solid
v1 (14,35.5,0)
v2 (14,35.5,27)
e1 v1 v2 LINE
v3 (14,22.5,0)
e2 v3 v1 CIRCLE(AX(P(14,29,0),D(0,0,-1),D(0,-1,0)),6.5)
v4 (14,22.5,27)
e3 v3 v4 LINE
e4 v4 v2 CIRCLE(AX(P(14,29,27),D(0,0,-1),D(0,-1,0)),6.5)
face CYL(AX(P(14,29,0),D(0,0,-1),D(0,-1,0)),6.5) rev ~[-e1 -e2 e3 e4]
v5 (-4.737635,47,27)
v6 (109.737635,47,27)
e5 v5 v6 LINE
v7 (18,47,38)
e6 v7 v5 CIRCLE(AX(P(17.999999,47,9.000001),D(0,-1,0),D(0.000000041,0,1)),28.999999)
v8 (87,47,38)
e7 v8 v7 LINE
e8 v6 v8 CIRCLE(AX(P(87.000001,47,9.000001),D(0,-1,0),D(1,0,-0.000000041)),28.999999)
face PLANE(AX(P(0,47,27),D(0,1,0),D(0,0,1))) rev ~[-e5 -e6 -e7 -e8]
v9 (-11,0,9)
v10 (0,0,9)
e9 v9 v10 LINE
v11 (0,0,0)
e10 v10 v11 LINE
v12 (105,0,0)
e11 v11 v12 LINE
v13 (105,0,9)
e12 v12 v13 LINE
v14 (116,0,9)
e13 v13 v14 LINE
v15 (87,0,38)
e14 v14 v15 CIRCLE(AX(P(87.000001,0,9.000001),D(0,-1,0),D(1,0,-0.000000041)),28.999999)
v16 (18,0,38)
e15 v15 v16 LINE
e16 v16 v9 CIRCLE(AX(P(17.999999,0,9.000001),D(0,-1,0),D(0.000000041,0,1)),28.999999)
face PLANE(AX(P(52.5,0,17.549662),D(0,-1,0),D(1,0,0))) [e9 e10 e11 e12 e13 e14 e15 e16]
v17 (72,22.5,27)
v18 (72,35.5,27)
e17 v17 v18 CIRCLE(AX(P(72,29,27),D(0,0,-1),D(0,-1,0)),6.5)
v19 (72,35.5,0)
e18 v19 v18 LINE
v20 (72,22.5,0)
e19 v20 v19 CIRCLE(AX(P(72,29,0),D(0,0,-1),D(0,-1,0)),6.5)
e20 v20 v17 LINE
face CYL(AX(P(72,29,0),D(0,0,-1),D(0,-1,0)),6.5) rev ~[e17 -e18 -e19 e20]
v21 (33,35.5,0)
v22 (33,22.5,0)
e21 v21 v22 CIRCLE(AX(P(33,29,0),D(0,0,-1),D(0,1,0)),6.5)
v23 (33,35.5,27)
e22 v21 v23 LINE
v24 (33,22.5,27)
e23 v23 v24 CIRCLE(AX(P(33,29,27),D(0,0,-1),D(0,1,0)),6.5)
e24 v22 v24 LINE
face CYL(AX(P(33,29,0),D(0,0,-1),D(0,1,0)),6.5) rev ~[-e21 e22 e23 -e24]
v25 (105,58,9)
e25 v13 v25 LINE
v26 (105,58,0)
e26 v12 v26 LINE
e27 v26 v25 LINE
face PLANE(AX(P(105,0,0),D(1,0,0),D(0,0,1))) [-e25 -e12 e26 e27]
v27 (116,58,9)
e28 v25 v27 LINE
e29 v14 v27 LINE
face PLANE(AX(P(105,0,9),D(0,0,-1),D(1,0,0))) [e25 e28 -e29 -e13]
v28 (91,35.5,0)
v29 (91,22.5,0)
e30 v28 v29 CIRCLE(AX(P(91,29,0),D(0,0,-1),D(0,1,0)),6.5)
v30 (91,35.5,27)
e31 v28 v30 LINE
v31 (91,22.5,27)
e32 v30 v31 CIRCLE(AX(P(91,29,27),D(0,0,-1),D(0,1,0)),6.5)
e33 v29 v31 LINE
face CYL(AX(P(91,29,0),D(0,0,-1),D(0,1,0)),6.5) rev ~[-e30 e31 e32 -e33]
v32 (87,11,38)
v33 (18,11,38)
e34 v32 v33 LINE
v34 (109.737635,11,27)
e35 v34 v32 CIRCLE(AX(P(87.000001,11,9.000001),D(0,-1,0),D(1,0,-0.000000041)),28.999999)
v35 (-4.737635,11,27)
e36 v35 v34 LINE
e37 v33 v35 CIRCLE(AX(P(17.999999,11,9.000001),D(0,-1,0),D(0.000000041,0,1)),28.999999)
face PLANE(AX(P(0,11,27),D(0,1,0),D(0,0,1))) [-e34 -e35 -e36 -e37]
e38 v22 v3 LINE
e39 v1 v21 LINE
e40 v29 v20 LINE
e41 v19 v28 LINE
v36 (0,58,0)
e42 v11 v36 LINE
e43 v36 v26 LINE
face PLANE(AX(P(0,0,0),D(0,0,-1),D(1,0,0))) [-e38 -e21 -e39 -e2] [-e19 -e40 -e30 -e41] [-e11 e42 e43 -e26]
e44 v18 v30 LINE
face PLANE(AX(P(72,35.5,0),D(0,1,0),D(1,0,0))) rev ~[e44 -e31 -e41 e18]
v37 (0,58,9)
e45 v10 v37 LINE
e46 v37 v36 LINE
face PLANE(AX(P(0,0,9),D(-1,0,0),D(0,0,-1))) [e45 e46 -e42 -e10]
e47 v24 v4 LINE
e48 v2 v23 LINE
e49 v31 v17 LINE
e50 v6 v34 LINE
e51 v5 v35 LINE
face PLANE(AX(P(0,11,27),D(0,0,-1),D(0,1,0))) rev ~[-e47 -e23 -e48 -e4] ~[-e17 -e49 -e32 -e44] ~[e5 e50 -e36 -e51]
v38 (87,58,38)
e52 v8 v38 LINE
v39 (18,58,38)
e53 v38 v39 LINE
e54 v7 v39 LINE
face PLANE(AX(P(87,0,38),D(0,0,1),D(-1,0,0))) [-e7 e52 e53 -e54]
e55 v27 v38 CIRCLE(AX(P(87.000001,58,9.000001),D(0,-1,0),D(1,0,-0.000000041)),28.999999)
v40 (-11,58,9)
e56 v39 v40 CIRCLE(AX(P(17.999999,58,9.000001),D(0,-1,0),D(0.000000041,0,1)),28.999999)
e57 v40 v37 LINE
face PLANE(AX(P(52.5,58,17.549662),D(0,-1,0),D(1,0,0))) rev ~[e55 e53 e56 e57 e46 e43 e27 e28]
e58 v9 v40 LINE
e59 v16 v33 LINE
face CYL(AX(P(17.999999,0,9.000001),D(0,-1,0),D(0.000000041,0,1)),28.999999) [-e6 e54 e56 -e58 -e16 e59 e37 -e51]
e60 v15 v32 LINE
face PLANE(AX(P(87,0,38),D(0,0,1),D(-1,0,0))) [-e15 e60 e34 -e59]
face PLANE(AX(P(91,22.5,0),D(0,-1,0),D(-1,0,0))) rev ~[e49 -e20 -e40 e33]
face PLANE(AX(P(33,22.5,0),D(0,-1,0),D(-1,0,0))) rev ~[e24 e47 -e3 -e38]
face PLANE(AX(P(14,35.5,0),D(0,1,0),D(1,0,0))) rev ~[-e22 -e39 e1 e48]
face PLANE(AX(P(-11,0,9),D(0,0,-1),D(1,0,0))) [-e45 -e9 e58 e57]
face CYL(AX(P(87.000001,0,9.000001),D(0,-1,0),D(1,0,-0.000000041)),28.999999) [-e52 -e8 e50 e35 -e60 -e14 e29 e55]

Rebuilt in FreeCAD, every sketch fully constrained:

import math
import FreeCAD as App
import Part
import Sketcher
from FreeCAD import Vector


def add_polygon(sketch, points):
    """Adds a closed chain of lines whose ends are joined by coincident constraints."""
    first, n = sketch.GeometryCount, len(points)
    for a, b in zip(points, points[1:] + points[:1]):
        sketch.addGeometry(Part.LineSegment(App.Vector(*a, 0), App.Vector(*b, 0)), False)
    for i in range(n):
        sketch.addConstraint(Sketcher.Constraint("Coincident", first + i, 2, first + (i + 1) % n, 1))

doc = App.newDocument("Part")
params = doc.addObject("Spreadsheet::Sheet", "Params")
for row, (alias, value) in enumerate([
    ("sketch1_radius", "28.999999 mm"),
    ("sketch1_width", "105 mm"),
    ("sketch1_width2", "11 mm"),
    ("sketch1_height", "9 mm"),
    ("pad1_length", "58 mm"),
    ("sketch2_width", "36 mm"),
    ("sketch2_height", "11 mm"),
    ("pocket1_length", "300 mm"),
    ("sketch3_radius", "6.5 mm"),
    ("sketch3_width", "19 mm"),
    ("pocket2_length", "60 mm"),
], start=1):
    params.set(f"A{row}", alias)
    params.set(f"B{row}", "=" + value)
    params.setAlias(f"B{row}", alias)

body = doc.addObject("PartDesign::Body", "Body")

sketch1 = body.newObject("Sketcher::SketchObject", "Sketch")
sketch1.AttachmentSupport = (doc.getObject("XZ_Plane"), [""])
sketch1.MapMode = "FlatFace"
sketch1.addGeometry([
    Part.LineSegment(Vector(0, 9, 0), Vector(0, 0, 0)),
    Part.LineSegment(Vector(0, 0, 0), Vector(105, 0, 0)),
    Part.LineSegment(Vector(105, 0, 0), Vector(105, 9, 0)),
    Part.LineSegment(Vector(105, 9, 0), Vector(116, 9, 0)),
    Part.ArcOfCircle(Part.Circle(Vector(87.000001, 9.000001, 0), Vector(0, 0, 1), 28.999999), math.radians(-0.000002), math.radians(90.000002)),
    Part.LineSegment(Vector(87, 38, 0), Vector(18, 38, 0)),
    Part.ArcOfCircle(Part.Circle(Vector(17.999999, 9.000001, 0), Vector(0, 0, 1), 28.999999), math.radians(89.999998), math.radians(180.000002)),
    Part.LineSegment(Vector(-11, 9, 0), Vector(0, 9, 0)),
], False)
sketch1.addConstraint([
    Sketcher.Constraint("Coincident", 0, 2, 1, 1),
    Sketcher.Constraint("Coincident", 1, 2, 2, 1),
    Sketcher.Constraint("Coincident", 2, 2, 3, 1),
    Sketcher.Constraint("Coincident", 3, 2, 4, 1),
    Sketcher.Constraint("Tangent", 4, 2, 5, 1),
    Sketcher.Constraint("Tangent", 5, 2, 6, 1),
    Sketcher.Constraint("Coincident", 6, 2, 7, 1),
    Sketcher.Constraint("Coincident", 7, 2, 0, 1),
    Sketcher.Constraint("Vertical", 0),
    Sketcher.Constraint("Horizontal", 1),
    Sketcher.Constraint("Vertical", 2),
    Sketcher.Constraint("Horizontal", 3),
    Sketcher.Constraint("Horizontal", 5),
    Sketcher.Constraint("Horizontal", 7),
    Sketcher.Constraint("Coincident", 0, 2, -1, 1),
    Sketcher.Constraint("Equal", 4, 6),
    Sketcher.Constraint("Horizontal", 6, 3, 2, 2),
    Sketcher.Constraint("Horizontal", 3, 2, 6, 2),
    Sketcher.Constraint("Equal", 3, 7),
    Sketcher.Constraint("Radius", 4, 28.999999),
    Sketcher.Constraint("DistanceX", 1, 1, 1, 2, 105.0),
    Sketcher.Constraint("DistanceX", 3, 1, 3, 2, 11.0),
    Sketcher.Constraint("DistanceY", 0, 2, 0, 1, 9.0),
])
sketch1.setExpression("Constraints[19]", "Params.sketch1_radius")
sketch1.setExpression("Constraints[20]", "Params.sketch1_width")
sketch1.setExpression("Constraints[21]", "Params.sketch1_width2")
sketch1.setExpression("Constraints[22]", "Params.sketch1_height")
pad1 = body.newObject("PartDesign::Pad", "Pad")
pad1.Profile = sketch1
pad1.setExpression("Length", "Params.pad1_length")
pad1.Reversed = True

sketch2 = body.newObject("Sketcher::SketchObject", "Sketch001")
sketch2.AttachmentSupport = (doc.getObject("YZ_Plane"), [""])
sketch2.MapMode = "FlatFace"
add_polygon(sketch2, [(11, 38), (11, 27), (47, 27), (47, 38)])
sketch2.addConstraint([
    Sketcher.Constraint("Vertical", 0),
    Sketcher.Constraint("Horizontal", 1),
    Sketcher.Constraint("Vertical", 2),
    Sketcher.Constraint("Horizontal", 3),
    Sketcher.Constraint("DistanceX", 1, 1, 1, 2, 36.0),
    Sketcher.Constraint("DistanceY", 0, 2, 0, 1, 11.0),
    Sketcher.Constraint("DistanceX", -1, 1, 0, 2, 11.0),
    Sketcher.Constraint("DistanceY", -1, 1, 0, 2, 27.0),
])
sketch2.setExpression("Constraints[8]", "Params.sketch2_width")
sketch2.setExpression("Constraints[9]", "Params.sketch2_height")
pocket1 = body.newObject("PartDesign::Pocket", "Pocket")
pocket1.Profile = sketch2
pocket1.setExpression("Length", "Params.pocket1_length")
pocket1.Midplane = True

sketch3 = body.newObject("Sketcher::SketchObject", "Sketch002")
sketch3.AttachmentSupport = (doc.getObject("XY_Plane"), [""])
sketch3.MapMode = "FlatFace"
sketch3.addGeometry([
    Part.LineSegment(Vector(91, 22.5, 0), Vector(72, 22.5, 0)),
    Part.ArcOfCircle(Part.Circle(Vector(72, 29, 0), Vector(0, 0, 1), 6.5), math.radians(90), math.radians(270)),
    Part.LineSegment(Vector(72, 35.5, 0), Vector(91, 35.5, 0)),
    Part.ArcOfCircle(Part.Circle(Vector(91, 29, 0), Vector(0, 0, 1), 6.5), math.radians(-90), math.radians(90)),
    Part.LineSegment(Vector(33, 22.5, 0), Vector(14, 22.5, 0)),
    Part.ArcOfCircle(Part.Circle(Vector(14, 29, 0), Vector(0, 0, 1), 6.5), math.radians(90), math.radians(270)),
    Part.LineSegment(Vector(14, 35.5, 0), Vector(33, 35.5, 0)),
    Part.ArcOfCircle(Part.Circle(Vector(33, 29, 0), Vector(0, 0, 1), 6.5), math.radians(-90), math.radians(90)),
], False)
sketch3.addConstraint([
    Sketcher.Constraint("Tangent", 0, 2, 1, 2),
    Sketcher.Constraint("Tangent", 1, 1, 2, 1),
    Sketcher.Constraint("Tangent", 2, 2, 3, 2),
    Sketcher.Constraint("Tangent", 3, 1, 0, 1),
    Sketcher.Constraint("Tangent", 4, 2, 5, 2),
    Sketcher.Constraint("Tangent", 5, 1, 6, 1),
    Sketcher.Constraint("Tangent", 6, 2, 7, 2),
    Sketcher.Constraint("Tangent", 7, 1, 4, 1),
    Sketcher.Constraint("Horizontal", 0),
    Sketcher.Constraint("Horizontal", 2),
    Sketcher.Constraint("Horizontal", 4),
    Sketcher.Constraint("Horizontal", 6),
    Sketcher.Constraint("Equal", 3, 5),
    Sketcher.Constraint("Horizontal", 3, 3, 5, 3),
    Sketcher.Constraint("Equal", 2, 4),
    Sketcher.Constraint("Radius", 1, 6.5),
    Sketcher.Constraint("DistanceX", 0, 2, 0, 1, 19.0),
    Sketcher.Constraint("DistanceX", -1, 1, 1, 3, 72.0),
    Sketcher.Constraint("DistanceY", -1, 1, 1, 3, 29.0),
    Sketcher.Constraint("DistanceX", -1, 1, 5, 3, 14.0),
])
sketch3.setExpression("Constraints[15]", "Params.sketch3_radius")
sketch3.setExpression("Constraints[16]", "Params.sketch3_width")
pocket2 = body.newObject("PartDesign::Pocket", "Pocket001")
pocket2.Profile = sketch3
pocket2.setExpression("Length", "Params.pocket2_length")
pocket2.Reversed = True

doc.recompute()
